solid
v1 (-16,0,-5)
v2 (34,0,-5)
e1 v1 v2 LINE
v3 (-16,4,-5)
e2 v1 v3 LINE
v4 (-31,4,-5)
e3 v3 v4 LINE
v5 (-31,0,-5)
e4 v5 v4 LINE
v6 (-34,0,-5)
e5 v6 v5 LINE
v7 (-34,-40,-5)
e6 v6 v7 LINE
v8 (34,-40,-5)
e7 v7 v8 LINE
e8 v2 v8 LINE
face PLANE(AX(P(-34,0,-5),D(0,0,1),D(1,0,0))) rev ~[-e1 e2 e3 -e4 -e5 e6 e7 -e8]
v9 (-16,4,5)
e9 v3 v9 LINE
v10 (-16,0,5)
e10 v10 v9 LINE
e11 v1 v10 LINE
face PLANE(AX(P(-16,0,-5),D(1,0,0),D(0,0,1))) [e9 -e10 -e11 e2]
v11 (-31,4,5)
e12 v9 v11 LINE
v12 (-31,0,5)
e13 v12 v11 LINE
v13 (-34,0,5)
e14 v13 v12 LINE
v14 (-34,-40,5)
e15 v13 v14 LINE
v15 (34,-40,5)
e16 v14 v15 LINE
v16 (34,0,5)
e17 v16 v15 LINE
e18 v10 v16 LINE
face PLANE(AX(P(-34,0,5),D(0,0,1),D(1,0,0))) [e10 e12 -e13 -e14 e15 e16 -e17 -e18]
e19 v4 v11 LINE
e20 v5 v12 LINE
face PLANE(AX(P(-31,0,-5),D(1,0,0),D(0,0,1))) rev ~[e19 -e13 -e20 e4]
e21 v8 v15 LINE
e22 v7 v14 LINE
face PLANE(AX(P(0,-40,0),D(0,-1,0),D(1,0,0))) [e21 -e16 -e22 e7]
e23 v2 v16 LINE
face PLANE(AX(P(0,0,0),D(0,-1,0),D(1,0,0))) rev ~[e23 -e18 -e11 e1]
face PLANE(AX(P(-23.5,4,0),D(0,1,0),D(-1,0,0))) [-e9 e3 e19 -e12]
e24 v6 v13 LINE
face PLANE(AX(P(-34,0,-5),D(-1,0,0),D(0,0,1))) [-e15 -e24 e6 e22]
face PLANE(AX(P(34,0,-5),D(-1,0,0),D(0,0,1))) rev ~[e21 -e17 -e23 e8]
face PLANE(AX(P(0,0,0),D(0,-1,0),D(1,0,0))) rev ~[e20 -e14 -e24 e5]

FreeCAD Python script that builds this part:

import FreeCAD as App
import Part
import Sketcher


def add_polygon(sketch, points):
    """Adds a closed chain of lines whose ends are joined by coincident constraints."""
    first, n = sketch.GeometryCount, len(points)
    for a, b in zip(points, points[1:] + points[:1]):
        sketch.addGeometry(Part.LineSegment(App.Vector(*a, 0), App.Vector(*b, 0)), False)
    for i in range(n):
        sketch.addConstraint(Sketcher.Constraint("Coincident", first + i, 2, first + (i + 1) % n, 1))

doc = App.newDocument("Part")
body = doc.addObject("PartDesign::Body", "Body")

sketch1 = body.newObject("Sketcher::SketchObject", "Sketch")
sketch1.AttachmentSupport = (doc.getObject("XZ_Plane"), [""])
sketch1.MapMode = "FlatFace"
add_polygon(sketch1, [(-34, 5), (-34, -5), (34, -5), (34, 5)])
sketch1.addConstraint(Sketcher.Constraint("Vertical", 0))
sketch1.addConstraint(Sketcher.Constraint("Horizontal", 1))
sketch1.addConstraint(Sketcher.Constraint("Vertical", 2))
sketch1.addConstraint(Sketcher.Constraint("Horizontal", 3))
sketch1.addConstraint(Sketcher.Constraint("Symmetric", 0, 2, 2, 2, -1, 1))
sketch1.addConstraint(Sketcher.Constraint("DistanceX", 1, 1, 1, 2, 68.0))
sketch1.addConstraint(Sketcher.Constraint("DistanceY", 0, 2, 0, 1, 10.0))
pad1 = body.newObject("PartDesign::Pad", "Pad")
pad1.Profile = sketch1
pad1.Length = 40

sketch2 = body.newObject("Sketcher::SketchObject", "Sketch001")
sketch2.AttachmentSupport = (doc.getObject("XZ_Plane"), [""])
sketch2.MapMode = "FlatFace"
add_polygon(sketch2, [(-16, 5), (-16, -5), (-31, -5), (-31, 5)])
sketch2.addConstraint(Sketcher.Constraint("Vertical", 0))
sketch2.addConstraint(Sketcher.Constraint("Horizontal", 1))
sketch2.addConstraint(Sketcher.Constraint("Vertical", 2))
sketch2.addConstraint(Sketcher.Constraint("Horizontal", 3))
sketch2.addConstraint(Sketcher.Constraint("DistanceX", 1, 2, 1, 1, 15.0))
sketch2.addConstraint(Sketcher.Constraint("DistanceY", 0, 2, 0, 1, 10.0))
sketch2.addConstraint(Sketcher.Constraint("DistanceX", 0, 2, -1, 1, 16.0))
sketch2.addConstraint(Sketcher.Constraint("DistanceY", 0, 2, -1, 1, 5.0))
pad2 = body.newObject("PartDesign::Pad", "Pad001")
pad2.Profile = sketch2
pad2.Length = 4
pad2.Reversed = True

doc.recompute()
